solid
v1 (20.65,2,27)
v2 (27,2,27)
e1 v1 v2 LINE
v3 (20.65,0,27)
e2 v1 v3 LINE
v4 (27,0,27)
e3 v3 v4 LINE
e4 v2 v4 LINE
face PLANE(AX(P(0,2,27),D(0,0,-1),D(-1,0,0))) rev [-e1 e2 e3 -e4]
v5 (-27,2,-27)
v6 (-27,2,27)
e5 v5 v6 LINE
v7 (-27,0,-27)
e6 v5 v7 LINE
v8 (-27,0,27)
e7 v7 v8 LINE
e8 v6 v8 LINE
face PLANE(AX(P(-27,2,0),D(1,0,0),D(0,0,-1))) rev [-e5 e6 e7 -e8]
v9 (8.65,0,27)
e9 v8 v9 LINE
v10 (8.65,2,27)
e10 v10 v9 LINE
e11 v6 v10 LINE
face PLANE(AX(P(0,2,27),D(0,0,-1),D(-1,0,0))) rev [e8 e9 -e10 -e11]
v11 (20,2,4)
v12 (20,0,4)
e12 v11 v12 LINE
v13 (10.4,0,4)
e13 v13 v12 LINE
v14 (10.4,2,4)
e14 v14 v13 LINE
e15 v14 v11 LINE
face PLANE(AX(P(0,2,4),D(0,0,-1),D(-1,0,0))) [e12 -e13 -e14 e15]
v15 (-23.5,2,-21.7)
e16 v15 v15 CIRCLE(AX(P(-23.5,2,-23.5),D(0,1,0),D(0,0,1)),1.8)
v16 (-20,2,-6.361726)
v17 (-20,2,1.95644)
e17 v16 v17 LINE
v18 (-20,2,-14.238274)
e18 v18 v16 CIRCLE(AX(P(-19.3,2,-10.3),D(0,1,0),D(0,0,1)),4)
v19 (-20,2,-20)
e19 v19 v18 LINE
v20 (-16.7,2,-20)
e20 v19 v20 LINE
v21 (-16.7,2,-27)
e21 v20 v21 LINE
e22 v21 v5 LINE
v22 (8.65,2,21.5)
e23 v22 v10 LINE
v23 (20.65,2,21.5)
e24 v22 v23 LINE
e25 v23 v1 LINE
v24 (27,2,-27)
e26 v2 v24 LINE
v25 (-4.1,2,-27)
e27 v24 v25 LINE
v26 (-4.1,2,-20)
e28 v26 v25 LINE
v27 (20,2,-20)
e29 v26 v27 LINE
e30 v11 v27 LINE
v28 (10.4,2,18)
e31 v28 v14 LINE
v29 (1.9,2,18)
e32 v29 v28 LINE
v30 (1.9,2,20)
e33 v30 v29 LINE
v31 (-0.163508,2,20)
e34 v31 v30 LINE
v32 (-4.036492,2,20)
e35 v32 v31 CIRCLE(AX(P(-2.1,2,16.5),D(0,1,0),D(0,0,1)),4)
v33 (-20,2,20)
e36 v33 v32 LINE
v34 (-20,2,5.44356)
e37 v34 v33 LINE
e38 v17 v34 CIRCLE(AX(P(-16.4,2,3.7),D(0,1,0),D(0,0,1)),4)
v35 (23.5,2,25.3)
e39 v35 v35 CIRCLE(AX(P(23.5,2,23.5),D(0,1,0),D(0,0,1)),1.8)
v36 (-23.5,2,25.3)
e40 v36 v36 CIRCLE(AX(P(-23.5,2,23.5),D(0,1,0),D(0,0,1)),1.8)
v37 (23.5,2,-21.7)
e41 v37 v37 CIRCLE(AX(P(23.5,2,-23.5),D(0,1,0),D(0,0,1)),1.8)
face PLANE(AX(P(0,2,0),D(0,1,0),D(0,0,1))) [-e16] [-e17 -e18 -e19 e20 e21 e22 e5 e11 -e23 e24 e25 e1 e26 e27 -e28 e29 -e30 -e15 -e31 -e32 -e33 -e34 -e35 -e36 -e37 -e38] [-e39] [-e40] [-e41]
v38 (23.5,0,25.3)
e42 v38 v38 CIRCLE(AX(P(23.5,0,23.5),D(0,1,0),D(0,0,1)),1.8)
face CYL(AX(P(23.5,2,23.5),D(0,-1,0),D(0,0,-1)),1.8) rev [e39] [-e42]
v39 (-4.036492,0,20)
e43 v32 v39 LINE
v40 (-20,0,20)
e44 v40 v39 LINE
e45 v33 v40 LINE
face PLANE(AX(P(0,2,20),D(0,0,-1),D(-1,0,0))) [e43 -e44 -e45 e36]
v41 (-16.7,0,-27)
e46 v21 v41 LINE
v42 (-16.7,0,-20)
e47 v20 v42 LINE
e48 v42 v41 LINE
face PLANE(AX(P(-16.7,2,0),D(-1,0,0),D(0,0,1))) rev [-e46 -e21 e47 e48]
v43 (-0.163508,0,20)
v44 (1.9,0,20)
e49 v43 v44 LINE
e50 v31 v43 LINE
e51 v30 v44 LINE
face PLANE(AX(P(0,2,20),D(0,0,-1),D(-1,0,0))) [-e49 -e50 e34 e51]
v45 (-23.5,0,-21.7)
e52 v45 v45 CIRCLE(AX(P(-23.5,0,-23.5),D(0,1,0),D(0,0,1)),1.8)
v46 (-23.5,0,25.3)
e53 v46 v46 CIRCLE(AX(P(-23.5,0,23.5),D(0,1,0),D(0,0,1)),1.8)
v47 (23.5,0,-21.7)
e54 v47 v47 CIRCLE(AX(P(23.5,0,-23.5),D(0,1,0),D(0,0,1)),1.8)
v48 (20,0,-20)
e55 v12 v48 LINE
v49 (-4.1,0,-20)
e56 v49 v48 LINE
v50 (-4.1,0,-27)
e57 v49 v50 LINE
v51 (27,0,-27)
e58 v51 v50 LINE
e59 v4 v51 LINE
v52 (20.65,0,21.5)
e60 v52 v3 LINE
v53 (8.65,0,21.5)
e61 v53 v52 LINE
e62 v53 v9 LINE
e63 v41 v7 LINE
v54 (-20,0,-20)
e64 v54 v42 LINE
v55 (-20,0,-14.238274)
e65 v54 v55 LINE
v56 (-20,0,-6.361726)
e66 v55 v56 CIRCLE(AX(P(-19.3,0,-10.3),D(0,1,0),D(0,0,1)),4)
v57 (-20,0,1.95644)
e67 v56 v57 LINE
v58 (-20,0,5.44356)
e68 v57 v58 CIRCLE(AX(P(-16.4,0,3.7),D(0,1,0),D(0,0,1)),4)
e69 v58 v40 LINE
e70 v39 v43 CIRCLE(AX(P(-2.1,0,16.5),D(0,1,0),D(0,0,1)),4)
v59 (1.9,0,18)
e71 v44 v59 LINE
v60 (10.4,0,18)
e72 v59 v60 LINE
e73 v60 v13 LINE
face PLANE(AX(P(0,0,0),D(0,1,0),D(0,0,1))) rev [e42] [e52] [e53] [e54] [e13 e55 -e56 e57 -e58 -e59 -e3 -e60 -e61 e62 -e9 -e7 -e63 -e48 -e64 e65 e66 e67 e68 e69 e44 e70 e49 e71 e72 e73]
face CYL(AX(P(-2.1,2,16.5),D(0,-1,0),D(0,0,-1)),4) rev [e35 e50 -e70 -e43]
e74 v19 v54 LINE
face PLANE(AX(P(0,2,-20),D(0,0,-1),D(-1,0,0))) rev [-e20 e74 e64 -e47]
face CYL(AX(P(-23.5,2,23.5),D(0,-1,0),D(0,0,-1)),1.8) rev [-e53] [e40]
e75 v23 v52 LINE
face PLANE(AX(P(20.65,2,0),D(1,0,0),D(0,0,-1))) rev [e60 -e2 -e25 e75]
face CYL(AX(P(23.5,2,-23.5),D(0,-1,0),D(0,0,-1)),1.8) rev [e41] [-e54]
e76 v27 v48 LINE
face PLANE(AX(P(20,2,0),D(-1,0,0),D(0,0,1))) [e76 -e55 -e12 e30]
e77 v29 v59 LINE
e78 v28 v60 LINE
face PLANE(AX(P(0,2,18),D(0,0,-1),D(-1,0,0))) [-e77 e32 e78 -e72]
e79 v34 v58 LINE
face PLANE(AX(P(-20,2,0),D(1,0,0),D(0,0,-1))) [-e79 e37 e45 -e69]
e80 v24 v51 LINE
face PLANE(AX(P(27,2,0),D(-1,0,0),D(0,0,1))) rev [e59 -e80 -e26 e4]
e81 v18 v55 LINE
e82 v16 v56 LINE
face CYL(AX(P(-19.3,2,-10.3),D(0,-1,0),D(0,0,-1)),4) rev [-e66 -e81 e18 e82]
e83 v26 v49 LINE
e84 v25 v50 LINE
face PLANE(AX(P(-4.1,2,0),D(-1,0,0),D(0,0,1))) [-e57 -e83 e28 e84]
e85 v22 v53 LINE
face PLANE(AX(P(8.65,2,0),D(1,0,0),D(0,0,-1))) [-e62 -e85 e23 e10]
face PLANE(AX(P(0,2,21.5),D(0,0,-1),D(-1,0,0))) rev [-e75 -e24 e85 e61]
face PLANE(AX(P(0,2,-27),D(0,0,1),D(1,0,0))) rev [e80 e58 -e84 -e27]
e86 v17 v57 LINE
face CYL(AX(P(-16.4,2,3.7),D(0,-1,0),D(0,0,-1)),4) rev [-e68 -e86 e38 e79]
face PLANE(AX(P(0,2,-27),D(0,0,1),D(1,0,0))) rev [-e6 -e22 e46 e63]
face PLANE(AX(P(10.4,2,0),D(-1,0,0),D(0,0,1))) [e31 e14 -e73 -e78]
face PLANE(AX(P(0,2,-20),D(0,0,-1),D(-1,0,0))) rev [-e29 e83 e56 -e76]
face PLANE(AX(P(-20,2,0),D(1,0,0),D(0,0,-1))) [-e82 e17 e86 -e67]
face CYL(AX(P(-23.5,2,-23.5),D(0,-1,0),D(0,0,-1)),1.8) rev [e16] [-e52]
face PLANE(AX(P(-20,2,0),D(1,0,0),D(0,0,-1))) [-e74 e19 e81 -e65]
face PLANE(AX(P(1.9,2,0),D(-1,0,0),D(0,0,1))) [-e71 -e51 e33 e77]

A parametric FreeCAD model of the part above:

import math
import FreeCAD as App
import Part
import Sketcher

V = App.Vector
Q = App.Units.Quantity

doc = App.newDocument("Part")
body = doc.addObject("PartDesign::Body", "Body")

sketch1 = body.newObject("Sketcher::SketchObject", "Sketch")
sketch1.AttachmentSupport = (doc.getObject("XZ_Plane"), [""])
sketch1.MapMode = "FlatFace"
sketch1.addGeometry(Part.LineSegment(V(8.7, 27, 0), V(8.7, 21.5, 0)), False)
sketch1.addGeometry(Part.LineSegment(V(8.7, 21.5, 0), V(20.6, 21.5, 0)), False)
sketch1.addGeometry(Part.LineSegment(V(20.6, 21.5, 0), V(20.6, 27, 0)), False)
sketch1.addGeometry(Part.LineSegment(V(20.6, 27, 0), V(27, 27, 0)), False)
sketch1.addGeometry(Part.LineSegment(V(27, 27, 0), V(27, -27, 0)), False)
sketch1.addGeometry(Part.LineSegment(V(27, -27, 0), V(-4.1, -27, 0)), False)
sketch1.addGeometry(Part.LineSegment(V(-4.1, -27, 0), V(-4.1, -20, 0)), False)
sketch1.addGeometry(Part.LineSegment(V(-4.1, -20, 0), V(20, -20, 0)), False)
sketch1.addGeometry(Part.LineSegment(V(20, -20, 0), V(20, 4, 0)), False)
sketch1.addGeometry(Part.LineSegment(V(20, 4, 0), V(10.4, 4, 0)), False)
sketch1.addGeometry(Part.LineSegment(V(10.4, 4, 0), V(10.4, 18, 0)), False)
sketch1.addGeometry(Part.LineSegment(V(10.4, 18, 0), V(1.9, 18, 0)), False)
sketch1.addGeometry(Part.LineSegment(V(1.9, 18, 0), V(1.9, 20, 0)), False)
sketch1.addGeometry(Part.LineSegment(V(1.9, 20, 0), V(-0.2, 20, 0)), False)
sketch1.addGeometry(Part.ArcOfCircle(Part.Circle(V(-2.1, 16.5, 0), V(0, 0, 1), 4), math.radians(61), math.radians(119)), False)
sketch1.addGeometry(Part.LineSegment(V(-4, 20, 0), V(-20, 20, 0)), False)
sketch1.addGeometry(Part.LineSegment(V(-20, 20, 0), V(-20, 5.4, 0)), False)
sketch1.addGeometry(Part.ArcOfCircle(Part.Circle(V(-16.4, 3.7, 0), V(0, 0, 1), 4), math.radians(154), math.radians(206)), False)
sketch1.addGeometry(Part.LineSegment(V(-20, 2, 0), V(-20, -6.4, 0)), False)
sketch1.addGeometry(Part.ArcOfCircle(Part.Circle(V(-19.3, -10.3, 0), V(0, 0, 1), 4), math.radians(100), math.radians(260)), False)
sketch1.addGeometry(Part.LineSegment(V(-20, -14.2, 0), V(-20, -20, 0)), False)
sketch1.addGeometry(Part.LineSegment(V(-20, -20, 0), V(-16.7, -20, 0)), False)
sketch1.addGeometry(Part.LineSegment(V(-16.7, -20, 0), V(-16.7, -27, 0)), False)
sketch1.addGeometry(Part.LineSegment(V(-16.7, -27, 0), V(-27, -27, 0)), False)
sketch1.addGeometry(Part.LineSegment(V(-27, -27, 0), V(-27, 27, 0)), False)
sketch1.addGeometry(Part.LineSegment(V(-27, 27, 0), V(8.7, 27, 0)), False)
sketch1.addGeometry(Part.Circle(V(-23.5, 23.5, 0), V(0, 0, 1), 1.8), False)
sketch1.addGeometry(Part.Circle(V(-23.5, -23.5, 0), V(0, 0, 1), 1.8), False)
sketch1.addGeometry(Part.Circle(V(23.5, 23.5, 0), V(0, 0, 1), 1.8), False)
sketch1.addGeometry(Part.Circle(V(23.5, -23.5, 0), V(0, 0, 1), 1.8), False)
sketch1.addConstraint(Sketcher.Constraint("Coincident", 0, 2, 1, 1))
sketch1.addConstraint(Sketcher.Constraint("Coincident", 1, 2, 2, 1))
sketch1.addConstraint(Sketcher.Constraint("Coincident", 2, 2, 3, 1))
sketch1.addConstraint(Sketcher.Constraint("Coincident", 3, 2, 4, 1))
sketch1.addConstraint(Sketcher.Constraint("Coincident", 4, 2, 5, 1))
sketch1.addConstraint(Sketcher.Constraint("Coincident", 5, 2, 6, 1))
sketch1.addConstraint(Sketcher.Constraint("Coincident", 6, 2, 7, 1))
sketch1.addConstraint(Sketcher.Constraint("Coincident", 7, 2, 8, 1))
sketch1.addConstraint(Sketcher.Constraint("Coincident", 8, 2, 9, 1))
sketch1.addConstraint(Sketcher.Constraint("Coincident", 9, 2, 10, 1))
sketch1.addConstraint(Sketcher.Constraint("Coincident", 10, 2, 11, 1))
sketch1.addConstraint(Sketcher.Constraint("Coincident", 11, 2, 12, 1))
sketch1.addConstraint(Sketcher.Constraint("Coincident", 12, 2, 13, 1))
sketch1.addConstraint(Sketcher.Constraint("Coincident", 13, 2, 14, 1))
sketch1.addConstraint(Sketcher.Constraint("Coincident", 14, 2, 15, 1))
sketch1.addConstraint(Sketcher.Constraint("Coincident", 15, 2, 16, 1))
sketch1.addConstraint(Sketcher.Constraint("Coincident", 16, 2, 17, 1))
sketch1.addConstraint(Sketcher.Constraint("Coincident", 17, 2, 18, 1))
sketch1.addConstraint(Sketcher.Constraint("Coincident", 18, 2, 19, 1))
sketch1.addConstraint(Sketcher.Constraint("Coincident", 19, 2, 20, 1))
sketch1.addConstraint(Sketcher.Constraint("Coincident", 20, 2, 21, 1))
sketch1.addConstraint(Sketcher.Constraint("Coincident", 21, 2, 22, 1))
sketch1.addConstraint(Sketcher.Constraint("Coincident", 22, 2, 23, 1))
sketch1.addConstraint(Sketcher.Constraint("Coincident", 23, 2, 24, 1))
sketch1.addConstraint(Sketcher.Constraint("Coincident", 24, 2, 25, 1))
sketch1.addConstraint(Sketcher.Constraint("Coincident", 25, 2, 0, 1))
sketch1.addConstraint(Sketcher.Constraint("Vertical", 0))
sketch1.addConstraint(Sketcher.Constraint("Horizontal", 1))
sketch1.addConstraint(Sketcher.Constraint("Vertical", 2))
sketch1.addConstraint(Sketcher.Constraint("Horizontal", 3))
sketch1.addConstraint(Sketcher.Constraint("Vertical", 4))
sketch1.addConstraint(Sketcher.Constraint("Horizontal", 5))
sketch1.addConstraint(Sketcher.Constraint("Vertical", 6))
sketch1.addConstraint(Sketcher.Constraint("Horizontal", 7))
sketch1.addConstraint(Sketcher.Constraint("Vertical", 8))
sketch1.addConstraint(Sketcher.Constraint("Horizontal", 9))
sketch1.addConstraint(Sketcher.Constraint("Vertical", 10))
sketch1.addConstraint(Sketcher.Constraint("Horizontal", 11))
sketch1.addConstraint(Sketcher.Constraint("Vertical", 12))
sketch1.addConstraint(Sketcher.Constraint("Horizontal", 13))
sketch1.addConstraint(Sketcher.Constraint("Horizontal", 15))
sketch1.addConstraint(Sketcher.Constraint("Vertical", 16))
sketch1.addConstraint(Sketcher.Constraint("Vertical", 18))
sketch1.addConstraint(Sketcher.Constraint("Vertical", 20))
sketch1.addConstraint(Sketcher.Constraint("Horizontal", 21))
sketch1.addConstraint(Sketcher.Constraint("Vertical", 22))
sketch1.addConstraint(Sketcher.Constraint("Horizontal", 23))
sketch1.addConstraint(Sketcher.Constraint("Vertical", 24))
sketch1.addConstraint(Sketcher.Constraint("Horizontal", 25))
sketch1.addConstraint(Sketcher.Constraint("Equal", 14, 17))
sketch1.addConstraint(Sketcher.Constraint("Equal", 17, 19))
sketch1.addConstraint(Sketcher.Constraint("Equal", 26, 27))
sketch1.addConstraint(Sketcher.Constraint("Equal", 27, 28))
sketch1.addConstraint(Sketcher.Constraint("Equal", 28, 29))
sketch1.addConstraint(Sketcher.Constraint("Symmetric", 27, 3, 28, 3, -1, 1))
sketch1.addConstraint(Sketcher.Constraint("Symmetric", 26, 3, 29, 3, -1, 1))
sketch1.addConstraint(Sketcher.Constraint("Symmetric", 7, 2, 15, 2, -1, 1))
sketch1.addConstraint(Sketcher.Constraint("Symmetric", 3, 2, 23, 2, -1, 1))
sketch1.addConstraint(Sketcher.Constraint("Symmetric", 26, 3, 28, 3, -2))
sketch1.addConstraint(Sketcher.Constraint("Symmetric", 7, 2, 20, 2, -2))
sketch1.addConstraint(Sketcher.Constraint("Horizontal", 13, 2, 14, 2))
sketch1.addConstraint(Sketcher.Constraint("Horizontal", 5, 2, 22, 2))
sketch1.addConstraint(Sketcher.Constraint("Horizontal", 3, 2, 24, 2))
sketch1.addConstraint(Sketcher.Constraint("Vertical", 16, 2, 17, 2))
sketch1.addConstraint(Sketcher.Constraint("Radius", 14, Q("4 mm")))
sketch1.addConstraint(Sketcher.Constraint("Diameter", 26, Q("3.6 mm")))
sketch1.addConstraint(Sketcher.Constraint("DistanceX", 1, 1, 1, 2, Q("12 mm")))
sketch1.addConstraint(Sketcher.Constraint("DistanceY", 4, 2, 4, 1, Q("54 mm")))
sketch1.addConstraint(Sketcher.Constraint("DistanceY", 6, 1, 6, 2, Q("7 mm")))
sketch1.addConstraint(Sketcher.Constraint("DistanceY", 8, 1, 8, 2, Q("24 mm")))
sketch1.addConstraint(Sketcher.Constraint("DistanceY", 10, 1, 10, 2, Q("14 mm")))
sketch1.addConstraint(Sketcher.Constraint("DistanceX", 5, 2, 5, 1, Q("31.1 mm")))
sketch1.addConstraint(Sketcher.Constraint("DistanceX", 7, 1, 7, 2, Q("24.1 mm")))
sketch1.addConstraint(Sketcher.Constraint("DistanceX", 9, 2, 9, 1, Q("9.6 mm")))
sketch1.addConstraint(Sketcher.Constraint("DistanceX", 11, 2, 11, 1, Q("8.5 mm")))
sketch1.addConstraint(Sketcher.Constraint("DistanceX", 21, 1, 21, 2, Q("3.3 mm")))
sketch1.addConstraint(Sketcher.Constraint("DistanceY", 0, 2, 0, 1, Q("5.5 mm")))
sketch1.addConstraint(Sketcher.Constraint("DistanceX", -1, 1, 3, 2, Q("27 mm")))
sketch1.addConstraint(Sketcher.Constraint("DistanceY", 19, 3, 17, 3, Q("14 mm")))
sketch1.addConstraint(Sketcher.Constraint("DistanceY", 14, 3, 26, 3, Q("7 mm")))
sketch1.addConstraint(Sketcher.Constraint("DistanceY", 27, 3, 14, 3, Q("40 mm")))
sketch1.addConstraint(Sketcher.Constraint("DistanceX", 26, 3, 28, 3, Q("47 mm")))
sketch1.addConstraint(Sketcher.Constraint("DistanceX", 14, 3, 11, 2, Q("4 mm")))
sketch1.addConstraint(Sketcher.Constraint("DistanceX", 3, 1, 3, 2, Q("6.35 mm")))
sketch1.addConstraint(Sketcher.Constraint("DistanceX", 17, 3, -1, 1, Q("16.4 mm")))
sketch1.addConstraint(Sketcher.Constraint("DistanceY", -1, 1, 17, 3, Q("3.7 mm")))
sketch1.addConstraint(Sketcher.Constraint("DistanceX", 19, 3, -1, 1, Q("19.3 mm")))
pad1 = body.newObject("PartDesign::Pad", "Pad")
pad1.Profile = sketch1
pad1.Length = 2
pad1.Reversed = True

doc.recompute()
